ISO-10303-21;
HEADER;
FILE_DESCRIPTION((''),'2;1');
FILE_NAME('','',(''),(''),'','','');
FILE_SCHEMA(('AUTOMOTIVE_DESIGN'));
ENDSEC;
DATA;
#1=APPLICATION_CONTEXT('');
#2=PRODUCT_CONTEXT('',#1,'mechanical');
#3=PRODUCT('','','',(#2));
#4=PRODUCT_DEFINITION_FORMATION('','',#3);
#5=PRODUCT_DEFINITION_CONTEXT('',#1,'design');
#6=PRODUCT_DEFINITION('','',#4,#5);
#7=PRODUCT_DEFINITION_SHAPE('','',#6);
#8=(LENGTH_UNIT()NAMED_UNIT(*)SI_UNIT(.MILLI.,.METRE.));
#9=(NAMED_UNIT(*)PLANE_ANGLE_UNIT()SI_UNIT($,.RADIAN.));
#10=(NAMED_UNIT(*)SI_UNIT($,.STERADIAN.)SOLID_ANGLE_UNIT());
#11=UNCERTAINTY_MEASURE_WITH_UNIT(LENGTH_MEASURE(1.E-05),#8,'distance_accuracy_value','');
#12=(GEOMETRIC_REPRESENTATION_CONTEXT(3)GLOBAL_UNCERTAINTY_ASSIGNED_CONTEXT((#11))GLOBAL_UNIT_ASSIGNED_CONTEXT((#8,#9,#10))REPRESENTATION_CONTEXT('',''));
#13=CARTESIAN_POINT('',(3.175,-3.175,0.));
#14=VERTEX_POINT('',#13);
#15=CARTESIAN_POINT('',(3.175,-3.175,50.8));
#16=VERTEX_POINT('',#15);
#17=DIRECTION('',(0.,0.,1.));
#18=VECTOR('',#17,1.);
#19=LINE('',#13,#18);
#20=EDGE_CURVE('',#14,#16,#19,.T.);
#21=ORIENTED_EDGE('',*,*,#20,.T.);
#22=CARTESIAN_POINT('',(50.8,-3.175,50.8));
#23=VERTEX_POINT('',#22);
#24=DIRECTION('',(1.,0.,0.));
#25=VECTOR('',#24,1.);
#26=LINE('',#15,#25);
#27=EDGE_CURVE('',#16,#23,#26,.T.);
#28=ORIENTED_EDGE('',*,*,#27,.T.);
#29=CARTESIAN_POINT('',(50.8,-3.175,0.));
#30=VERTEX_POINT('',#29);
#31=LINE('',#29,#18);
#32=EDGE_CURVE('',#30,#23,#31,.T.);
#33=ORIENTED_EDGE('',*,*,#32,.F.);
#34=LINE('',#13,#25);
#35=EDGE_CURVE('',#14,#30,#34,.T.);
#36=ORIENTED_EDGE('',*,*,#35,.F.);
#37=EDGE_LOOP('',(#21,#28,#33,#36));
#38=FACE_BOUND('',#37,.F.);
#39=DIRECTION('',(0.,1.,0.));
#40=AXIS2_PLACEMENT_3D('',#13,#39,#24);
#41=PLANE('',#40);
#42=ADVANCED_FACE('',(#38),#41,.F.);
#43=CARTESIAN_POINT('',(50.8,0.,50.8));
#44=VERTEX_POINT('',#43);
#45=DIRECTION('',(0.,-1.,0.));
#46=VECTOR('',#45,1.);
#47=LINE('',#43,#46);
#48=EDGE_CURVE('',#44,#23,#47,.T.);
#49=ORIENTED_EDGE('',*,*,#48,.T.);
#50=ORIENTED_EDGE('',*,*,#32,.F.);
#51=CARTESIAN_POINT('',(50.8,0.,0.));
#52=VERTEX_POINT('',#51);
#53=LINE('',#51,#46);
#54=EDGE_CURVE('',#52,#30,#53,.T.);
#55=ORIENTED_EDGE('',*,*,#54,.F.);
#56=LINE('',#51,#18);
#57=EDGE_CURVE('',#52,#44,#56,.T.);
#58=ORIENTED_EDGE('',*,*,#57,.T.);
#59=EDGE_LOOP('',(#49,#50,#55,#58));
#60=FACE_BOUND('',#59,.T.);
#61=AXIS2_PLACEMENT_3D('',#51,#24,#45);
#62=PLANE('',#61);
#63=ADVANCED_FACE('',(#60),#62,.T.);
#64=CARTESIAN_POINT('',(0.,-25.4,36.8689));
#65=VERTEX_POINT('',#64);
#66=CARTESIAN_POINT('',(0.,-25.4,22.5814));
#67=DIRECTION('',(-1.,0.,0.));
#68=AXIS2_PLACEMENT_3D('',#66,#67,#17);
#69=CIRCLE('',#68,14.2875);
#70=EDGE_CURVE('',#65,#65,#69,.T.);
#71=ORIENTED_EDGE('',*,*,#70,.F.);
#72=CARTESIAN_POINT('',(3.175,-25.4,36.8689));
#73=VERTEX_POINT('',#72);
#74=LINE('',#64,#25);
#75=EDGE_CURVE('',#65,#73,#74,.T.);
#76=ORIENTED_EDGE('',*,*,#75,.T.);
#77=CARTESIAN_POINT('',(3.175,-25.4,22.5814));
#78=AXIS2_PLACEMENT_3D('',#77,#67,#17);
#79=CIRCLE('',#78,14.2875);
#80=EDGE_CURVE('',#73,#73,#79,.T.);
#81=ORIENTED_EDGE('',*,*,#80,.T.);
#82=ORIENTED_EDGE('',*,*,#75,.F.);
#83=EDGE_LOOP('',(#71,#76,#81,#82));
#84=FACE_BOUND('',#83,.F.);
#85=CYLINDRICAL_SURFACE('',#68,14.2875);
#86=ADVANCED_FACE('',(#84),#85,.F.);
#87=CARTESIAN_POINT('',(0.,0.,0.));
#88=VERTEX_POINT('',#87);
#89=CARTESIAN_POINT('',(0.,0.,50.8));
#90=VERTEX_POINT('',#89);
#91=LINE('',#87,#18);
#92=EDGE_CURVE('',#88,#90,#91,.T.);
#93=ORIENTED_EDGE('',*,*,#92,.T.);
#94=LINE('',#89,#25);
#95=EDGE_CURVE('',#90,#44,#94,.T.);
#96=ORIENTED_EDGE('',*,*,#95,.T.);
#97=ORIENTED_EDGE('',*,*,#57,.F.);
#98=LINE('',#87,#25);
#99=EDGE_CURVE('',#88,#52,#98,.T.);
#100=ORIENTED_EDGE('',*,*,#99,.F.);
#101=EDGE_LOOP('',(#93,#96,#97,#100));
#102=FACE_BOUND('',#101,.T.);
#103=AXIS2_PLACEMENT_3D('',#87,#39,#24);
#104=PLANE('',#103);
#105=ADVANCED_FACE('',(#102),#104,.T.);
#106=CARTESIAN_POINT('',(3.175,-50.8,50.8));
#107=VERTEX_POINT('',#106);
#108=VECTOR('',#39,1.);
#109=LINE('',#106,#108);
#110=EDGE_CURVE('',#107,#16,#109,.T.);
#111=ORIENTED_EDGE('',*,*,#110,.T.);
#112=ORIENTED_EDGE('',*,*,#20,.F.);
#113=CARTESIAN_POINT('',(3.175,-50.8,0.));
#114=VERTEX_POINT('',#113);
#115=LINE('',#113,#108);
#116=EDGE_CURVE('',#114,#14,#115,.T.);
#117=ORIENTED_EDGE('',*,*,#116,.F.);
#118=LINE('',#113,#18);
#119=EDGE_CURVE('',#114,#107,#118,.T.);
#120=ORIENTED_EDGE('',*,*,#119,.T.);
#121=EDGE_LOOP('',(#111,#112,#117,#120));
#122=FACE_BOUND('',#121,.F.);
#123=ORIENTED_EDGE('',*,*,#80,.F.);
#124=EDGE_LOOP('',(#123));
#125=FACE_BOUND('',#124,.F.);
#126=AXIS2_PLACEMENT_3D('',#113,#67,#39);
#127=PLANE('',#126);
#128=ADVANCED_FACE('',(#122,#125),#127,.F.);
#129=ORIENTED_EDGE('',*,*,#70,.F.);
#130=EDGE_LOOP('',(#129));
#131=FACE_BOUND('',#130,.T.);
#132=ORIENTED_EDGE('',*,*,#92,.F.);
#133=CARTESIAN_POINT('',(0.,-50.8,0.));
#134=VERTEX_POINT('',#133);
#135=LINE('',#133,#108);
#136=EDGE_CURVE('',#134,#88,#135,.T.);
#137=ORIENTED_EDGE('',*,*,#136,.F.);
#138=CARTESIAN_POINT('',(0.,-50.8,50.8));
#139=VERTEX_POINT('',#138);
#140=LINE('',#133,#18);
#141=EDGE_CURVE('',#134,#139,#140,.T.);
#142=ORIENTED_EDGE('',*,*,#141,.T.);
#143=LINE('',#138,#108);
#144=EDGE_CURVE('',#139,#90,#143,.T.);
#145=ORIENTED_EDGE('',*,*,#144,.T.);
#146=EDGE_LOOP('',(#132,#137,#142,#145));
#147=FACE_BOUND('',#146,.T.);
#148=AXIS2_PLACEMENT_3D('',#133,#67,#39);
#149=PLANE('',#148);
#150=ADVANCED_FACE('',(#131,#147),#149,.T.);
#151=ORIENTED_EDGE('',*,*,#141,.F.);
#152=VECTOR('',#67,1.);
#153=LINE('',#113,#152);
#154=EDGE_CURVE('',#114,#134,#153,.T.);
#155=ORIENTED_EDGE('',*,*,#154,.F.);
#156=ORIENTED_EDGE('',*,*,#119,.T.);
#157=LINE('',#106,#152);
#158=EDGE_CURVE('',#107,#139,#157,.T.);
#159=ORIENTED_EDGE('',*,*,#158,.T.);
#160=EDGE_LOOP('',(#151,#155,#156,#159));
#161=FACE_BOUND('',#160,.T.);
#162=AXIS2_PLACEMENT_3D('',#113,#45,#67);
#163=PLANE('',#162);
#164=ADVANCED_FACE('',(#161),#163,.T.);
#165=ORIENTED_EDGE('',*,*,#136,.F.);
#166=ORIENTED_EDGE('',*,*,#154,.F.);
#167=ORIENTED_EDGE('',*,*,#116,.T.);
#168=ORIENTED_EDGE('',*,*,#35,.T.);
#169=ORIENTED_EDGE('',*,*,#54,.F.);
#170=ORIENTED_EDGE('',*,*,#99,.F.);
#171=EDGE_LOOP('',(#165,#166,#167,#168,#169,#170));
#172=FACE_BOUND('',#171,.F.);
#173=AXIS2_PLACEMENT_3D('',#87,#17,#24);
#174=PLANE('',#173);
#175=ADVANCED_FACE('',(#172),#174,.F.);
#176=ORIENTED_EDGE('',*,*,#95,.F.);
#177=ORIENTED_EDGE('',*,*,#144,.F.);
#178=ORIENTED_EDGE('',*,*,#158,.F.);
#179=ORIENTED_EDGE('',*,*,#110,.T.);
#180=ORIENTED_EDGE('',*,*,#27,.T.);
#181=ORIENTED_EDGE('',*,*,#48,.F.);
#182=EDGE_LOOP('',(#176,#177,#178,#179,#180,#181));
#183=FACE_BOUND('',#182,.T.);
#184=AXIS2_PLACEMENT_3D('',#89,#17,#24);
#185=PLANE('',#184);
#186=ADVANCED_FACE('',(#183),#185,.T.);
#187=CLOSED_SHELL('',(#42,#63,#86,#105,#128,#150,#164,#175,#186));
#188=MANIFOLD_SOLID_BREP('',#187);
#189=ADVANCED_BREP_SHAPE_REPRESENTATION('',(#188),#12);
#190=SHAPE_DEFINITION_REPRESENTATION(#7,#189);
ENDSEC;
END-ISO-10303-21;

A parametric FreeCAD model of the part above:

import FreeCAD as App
import Part
import Sketcher
Q = App.Units.Quantity

doc = App.newDocument("Part")
body = doc.addObject("PartDesign::Body", "Body")

# Sketch on XY plane
sketch1 = body.newObject("Sketcher::SketchObject", "Sketch")
sketch1.AttachmentSupport = (doc.getObject("XY_Plane"), [""])
sketch1.MapMode = "FlatFace"
sketch1.addGeometry([
    Part.LineSegment(App.Vector(50.8, 0, 0), App.Vector(0, 0, 0)),  # 0
    Part.LineSegment(App.Vector(0, 0, 0), App.Vector(0, -50.8, 0)),  # 1
    Part.LineSegment(App.Vector(0, -50.8, 0), App.Vector(3.175, -50.8, 0)),  # 2
    Part.LineSegment(App.Vector(3.175, -50.8, 0), App.Vector(3.175, -3.175, 0)),  # 3
    Part.LineSegment(App.Vector(3.175, -3.175, 0), App.Vector(50.8, -3.175, 0)),  # 4
    Part.LineSegment(App.Vector(50.8, -3.175, 0), App.Vector(50.8, 0, 0)),  # 5
], False)
sketch1.addConstraint([
    Sketcher.Constraint("Coincident", 0, 2, 1, 1),
    Sketcher.Constraint("Coincident", 1, 2, 2, 1),
    Sketcher.Constraint("Coincident", 2, 2, 3, 1),
    Sketcher.Constraint("Coincident", 3, 2, 4, 1),
    Sketcher.Constraint("Coincident", 4, 2, 5, 1),
    Sketcher.Constraint("Coincident", 5, 2, 0, 1),
    Sketcher.Constraint("Horizontal", 0),
    Sketcher.Constraint("Vertical", 1),
    Sketcher.Constraint("Horizontal", 2),
    Sketcher.Constraint("Vertical", 3),
    Sketcher.Constraint("Horizontal", 4),
    Sketcher.Constraint("Vertical", 5),
    Sketcher.Constraint("Coincident", 0, 2, -1, 1),
    Sketcher.Constraint("Equal", 0, 1),
    Sketcher.Constraint("Equal", 4, 3),
    Sketcher.Constraint("DistanceX", 0, 2, 0, 1, Q("2 in")),
    Sketcher.Constraint("DistanceX", 2, 1, 2, 2, Q("0.125 in")),
])
pad1 = body.newObject("PartDesign::Pad", "Pad")
pad1.Profile = sketch1
pad1.Length = Q("2 in")

# Sketch on YZ plane
sketch2 = body.newObject("Sketcher::SketchObject", "Sketch001")
sketch2.AttachmentSupport = (doc.getObject("YZ_Plane"), [""])
sketch2.MapMode = "FlatFace"
sketch2.addGeometry(Part.Circle(App.Vector(-25.4, 22.5814, 0), App.Vector(0, 0, 1), 14.2875), False)
sketch2.addConstraint([
    Sketcher.Constraint("Diameter", 0, Q("1.125 in")),
    Sketcher.Constraint("DistanceX", 0, 3, -1, 1, Q("1 in")),
    Sketcher.Constraint("DistanceY", -1, 1, 0, 3, 22.5814),
])
pocket1 = body.newObject("PartDesign::Pocket", "Pocket")
pocket1.Profile = sketch2
pocket1.Type = "ThroughAll"
pocket1.Reversed = True

doc.recompute()
